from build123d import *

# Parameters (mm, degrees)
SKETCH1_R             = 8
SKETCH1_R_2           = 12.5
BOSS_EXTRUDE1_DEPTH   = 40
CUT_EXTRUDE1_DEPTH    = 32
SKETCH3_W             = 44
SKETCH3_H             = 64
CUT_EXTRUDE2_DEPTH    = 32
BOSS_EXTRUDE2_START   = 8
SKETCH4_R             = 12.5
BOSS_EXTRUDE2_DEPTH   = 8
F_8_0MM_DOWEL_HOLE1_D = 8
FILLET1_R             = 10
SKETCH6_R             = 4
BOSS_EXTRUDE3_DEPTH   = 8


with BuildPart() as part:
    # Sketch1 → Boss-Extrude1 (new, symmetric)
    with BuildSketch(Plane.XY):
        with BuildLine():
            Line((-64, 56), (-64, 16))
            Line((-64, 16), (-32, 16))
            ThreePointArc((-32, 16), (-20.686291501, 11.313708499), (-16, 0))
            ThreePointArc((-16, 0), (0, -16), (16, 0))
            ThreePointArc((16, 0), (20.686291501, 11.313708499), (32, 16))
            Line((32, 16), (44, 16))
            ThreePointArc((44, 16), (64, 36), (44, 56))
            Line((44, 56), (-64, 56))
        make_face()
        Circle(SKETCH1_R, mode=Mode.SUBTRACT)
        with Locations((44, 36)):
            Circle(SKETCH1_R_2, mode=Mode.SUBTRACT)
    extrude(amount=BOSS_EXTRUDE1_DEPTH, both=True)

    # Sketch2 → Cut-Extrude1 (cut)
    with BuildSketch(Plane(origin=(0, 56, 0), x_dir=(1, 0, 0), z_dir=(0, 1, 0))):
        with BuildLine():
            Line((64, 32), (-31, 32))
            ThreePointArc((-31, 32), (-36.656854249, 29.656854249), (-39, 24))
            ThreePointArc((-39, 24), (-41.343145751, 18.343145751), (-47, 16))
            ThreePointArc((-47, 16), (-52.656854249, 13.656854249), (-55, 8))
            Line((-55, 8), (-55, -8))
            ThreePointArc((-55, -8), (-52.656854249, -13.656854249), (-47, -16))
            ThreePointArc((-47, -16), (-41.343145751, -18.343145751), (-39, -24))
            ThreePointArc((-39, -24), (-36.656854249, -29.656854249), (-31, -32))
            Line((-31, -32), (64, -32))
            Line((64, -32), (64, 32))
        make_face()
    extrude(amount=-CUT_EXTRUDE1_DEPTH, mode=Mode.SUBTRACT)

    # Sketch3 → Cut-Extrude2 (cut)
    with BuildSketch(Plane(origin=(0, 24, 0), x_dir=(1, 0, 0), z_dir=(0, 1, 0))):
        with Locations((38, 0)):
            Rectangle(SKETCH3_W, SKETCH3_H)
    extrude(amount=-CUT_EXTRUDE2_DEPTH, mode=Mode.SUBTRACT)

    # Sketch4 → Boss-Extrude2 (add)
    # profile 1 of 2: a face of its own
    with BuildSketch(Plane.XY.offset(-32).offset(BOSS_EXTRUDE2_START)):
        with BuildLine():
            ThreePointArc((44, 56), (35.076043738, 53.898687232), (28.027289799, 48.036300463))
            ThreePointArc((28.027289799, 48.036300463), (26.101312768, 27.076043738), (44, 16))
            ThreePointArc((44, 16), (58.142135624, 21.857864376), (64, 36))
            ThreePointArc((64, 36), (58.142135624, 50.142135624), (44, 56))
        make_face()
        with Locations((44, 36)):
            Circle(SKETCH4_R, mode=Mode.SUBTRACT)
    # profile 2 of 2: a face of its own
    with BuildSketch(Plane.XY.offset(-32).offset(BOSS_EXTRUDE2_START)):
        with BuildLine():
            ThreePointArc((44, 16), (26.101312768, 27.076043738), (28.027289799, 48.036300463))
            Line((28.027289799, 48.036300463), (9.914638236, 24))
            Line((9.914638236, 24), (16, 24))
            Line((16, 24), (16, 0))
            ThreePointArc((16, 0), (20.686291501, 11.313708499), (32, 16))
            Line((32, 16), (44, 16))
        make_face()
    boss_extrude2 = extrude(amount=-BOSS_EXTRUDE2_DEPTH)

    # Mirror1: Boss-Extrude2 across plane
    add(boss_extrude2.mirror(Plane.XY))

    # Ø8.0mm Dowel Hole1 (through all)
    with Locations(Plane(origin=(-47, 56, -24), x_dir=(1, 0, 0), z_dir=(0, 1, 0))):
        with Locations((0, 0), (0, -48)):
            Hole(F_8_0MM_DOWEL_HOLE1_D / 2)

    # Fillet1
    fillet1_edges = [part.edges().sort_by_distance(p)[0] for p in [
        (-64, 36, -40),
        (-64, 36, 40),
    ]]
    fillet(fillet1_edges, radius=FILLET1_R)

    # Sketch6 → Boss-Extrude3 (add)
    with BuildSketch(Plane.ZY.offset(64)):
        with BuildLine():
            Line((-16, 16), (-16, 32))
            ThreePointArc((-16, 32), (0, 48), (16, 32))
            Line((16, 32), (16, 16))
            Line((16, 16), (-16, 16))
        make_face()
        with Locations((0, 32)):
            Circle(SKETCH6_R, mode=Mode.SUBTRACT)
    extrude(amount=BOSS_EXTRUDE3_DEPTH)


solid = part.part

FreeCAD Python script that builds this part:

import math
import FreeCAD as App
import Part
import Sketcher

V = App.Vector
Q = App.Units.Quantity


def edges_at(feature, points):
    """Names of the edges that pass closest to the given points."""
    edges = feature.Shape.Edges
    near = lambda p: min(range(len(edges)), key=lambda i: edges[i].distToShape(Part.Vertex(*p))[0])
    return sorted({f"Edge{near(p) + 1}" for p in points})


def add_polygon(sketch, points):
    """Adds a closed chain of lines whose ends are joined by coincident constraints."""
    first, n = sketch.GeometryCount, len(points)
    for a, b in zip(points, points[1:] + points[:1]):
        sketch.addGeometry(Part.LineSegment(App.Vector(*a, 0), App.Vector(*b, 0)), False)
    for i in range(n):
        sketch.addConstraint(Sketcher.Constraint("Coincident", first + i, 2, first + (i + 1) % n, 1))

doc = App.newDocument("Part")
params = doc.addObject("Spreadsheet::Sheet", "Params")
for row, (alias, value) in enumerate([
    ("sketch1_diameter", "16 mm"),
    ("sketch1_diameter2", "25 mm"),
    ("sketch1_radius", "16 mm"),
    ("sketch1_radius2", "20 mm"),
    ("sketch1_width", "32 mm"),
    ("pad1_length", "80 mm"),
    ("sketch2_radius", "8 mm"),
    ("sketch2_width", "95 mm"),
    ("sketch2_height", "16 mm"),
    ("pocket1_length", "32 mm"),
    ("sketch3_width", "44 mm"),
    ("sketch3_height", "64 mm"),
    ("pocket2_length", "32 mm"),
    ("sketch4_diameter", "25 mm"),
    ("sketch4_radius", "20 mm"),
    ("sketch4_radius2", "16 mm"),
    ("sketch4_width", "12 mm"),
    ("sketch4_height", "24 mm"),
    ("pad2_length", "8 mm"),
    ("sketch5_diameter", "8 mm"),
    ("hole_diameter", "8 mm"),
    ("fillet_radius", "10 mm"),
    ("sketch6_diameter", "8 mm"),
    ("sketch6_radius", "16 mm"),
    ("sketch6_width", "16 mm"),
    ("pad3_length", "8 mm"),
], start=1):
    params.set(f"A{row}", alias)
    params.set(f"B{row}", "=" + value)
    params.setAlias(f"B{row}", alias)

body = doc.addObject("PartDesign::Body", "Body")

sketch1 = body.newObject("Sketcher::SketchObject", "Sketch")
sketch1.AttachmentSupport = (doc.getObject("XY_Plane"), [""])
sketch1.MapMode = "FlatFace"
sketch1.addGeometry([
    Part.LineSegment(V(-64, 56, 0), V(-64, 16, 0)),
    Part.LineSegment(V(-64, 16, 0), V(-32, 16, 0)),
    Part.ArcOfCircle(Part.Circle(V(-32, 0, 0), V(0, 0, 1), 16), math.radians(0), math.radians(90)),
    Part.ArcOfCircle(Part.Circle(V(0, 0, 0), V(0, 0, 1), 16), math.radians(180), math.radians(360)),
    Part.ArcOfCircle(Part.Circle(V(32, 0, 0), V(0, 0, 1), 16), math.radians(90), math.radians(180)),
    Part.LineSegment(V(32, 16, 0), V(44, 16, 0)),
    Part.ArcOfCircle(Part.Circle(V(44, 36, 0), V(0, 0, 1), 20), math.radians(-90), math.radians(90)),
    Part.LineSegment(V(44, 56, 0), V(-64, 56, 0)),
    Part.Circle(V(0, 0, 0), V(0, 0, 1), 8),
    Part.Circle(V(44, 36, 0), V(0, 0, 1), 12),
], False)
sketch1.addConstraint([
    Sketcher.Constraint("Coincident", 0, 2, 1, 1),
    Sketcher.Constraint("Tangent", 1, 2, 2, 2),
    Sketcher.Constraint("Tangent", 2, 1, 3, 1),
    Sketcher.Constraint("Tangent", 3, 2, 4, 2),
    Sketcher.Constraint("Tangent", 4, 1, 5, 1),
    Sketcher.Constraint("Tangent", 5, 2, 6, 1),
    Sketcher.Constraint("Tangent", 6, 2, 7, 1),
    Sketcher.Constraint("Coincident", 7, 2, 0, 1),
    Sketcher.Constraint("Vertical", 0),
    Sketcher.Constraint("Horizontal", 1),
    Sketcher.Constraint("Horizontal", 5),
    Sketcher.Constraint("Horizontal", 7),
    Sketcher.Constraint("Coincident", 3, 3, -1, 1),
    Sketcher.Constraint("Coincident", 8, 3, -1, 1),
    Sketcher.Constraint("Coincident", 9, 3, 6, 3),
    Sketcher.Constraint("Equal", 2, 3),
    Sketcher.Constraint("Equal", 3, 4),
    Sketcher.Constraint("PointOnObject", 2, 3, -1),
    Sketcher.Constraint("PointOnObject", 4, 3, -1),
    Sketcher.Constraint("Diameter", 8, 16.0),
    Sketcher.Constraint("Diameter", 9, 25.0),
    Sketcher.Constraint("Radius", 2, 16.0),
    Sketcher.Constraint("Radius", 6, 20.0),
    Sketcher.Constraint("DistanceX", 1, 1, 1, 2, 32.0),
    Sketcher.Constraint("DistanceX", 5, 1, 5, 2, 12.0),
])
sketch1.setExpression("Constraints[19]", "Params.sketch1_diameter")
sketch1.setExpression("Constraints[20]", "Params.sketch1_diameter2")
sketch1.setExpression("Constraints[21]", "Params.sketch1_radius")
sketch1.setExpression("Constraints[22]", "Params.sketch1_radius2")
sketch1.setExpression("Constraints[23]", "Params.sketch1_width")
pad1 = body.newObject("PartDesign::Pad", "Pad")
pad1.Profile = sketch1
pad1.setExpression("Length", "Params.pad1_length")
pad1.Midplane = True

sketch2 = body.newObject("Sketcher::SketchObject", "Sketch001")
sketch2.AttachmentSupport = (doc.getObject("XZ_Plane"), [""])
sketch2.MapMode = "FlatFace"
sketch2.AttachmentOffset = App.Placement(V(0, 0, -56), App.Rotation())
sketch2.addGeometry([
    Part.LineSegment(V(64, -32, 0), V(-31, -32, 0)),
    Part.ArcOfCircle(Part.Circle(V(-31, -24, 0), V(0, 0, 1), 8), math.radians(-180), math.radians(-90)),
    Part.ArcOfCircle(Part.Circle(V(-47, -24, 0), V(0, 0, 1), 8), math.radians(0), math.radians(90)),
    Part.ArcOfCircle(Part.Circle(V(-47, -8, 0), V(0, 0, 1), 8), math.radians(-180), math.radians(-90)),
    Part.LineSegment(V(-55, -8, 0), V(-55, 8, 0)),
    Part.ArcOfCircle(Part.Circle(V(-47, 8, 0), V(0, 0, 1), 8), math.radians(90), math.radians(180)),
    Part.ArcOfCircle(Part.Circle(V(-47, 24, 0), V(0, 0, 1), 8), math.radians(-90), math.radians(0)),
    Part.ArcOfCircle(Part.Circle(V(-31, 24, 0), V(0, 0, 1), 8), math.radians(90), math.radians(180)),
    Part.LineSegment(V(-31, 32, 0), V(64, 32, 0)),
    Part.LineSegment(V(64, 32, 0), V(64, -32, 0)),
], False)
sketch2.addConstraint([
    Sketcher.Constraint("Tangent", 0, 2, 1, 2),
    Sketcher.Constraint("Tangent", 1, 1, 2, 1),
    Sketcher.Constraint("Tangent", 2, 2, 3, 2),
    Sketcher.Constraint("Tangent", 3, 1, 4, 1),
    Sketcher.Constraint("Tangent", 4, 2, 5, 2),
    Sketcher.Constraint("Tangent", 5, 1, 6, 1),
    Sketcher.Constraint("Tangent", 6, 2, 7, 2),
    Sketcher.Constraint("Tangent", 7, 1, 8, 1),
    Sketcher.Constraint("Coincident", 8, 2, 9, 1),
    Sketcher.Constraint("Coincident", 9, 2, 0, 1),
    Sketcher.Constraint("Horizontal", 0),
    Sketcher.Constraint("Vertical", 4),
    Sketcher.Constraint("Horizontal", 8),
    Sketcher.Constraint("Vertical", 9),
    Sketcher.Constraint("Equal", 1, 2),
    Sketcher.Constraint("Equal", 2, 3),
    Sketcher.Constraint("Equal", 3, 5),
    Sketcher.Constraint("Equal", 5, 6),
    Sketcher.Constraint("Equal", 6, 7),
    Sketcher.Constraint("Symmetric", 2, 3, 6, 3, -1),
    Sketcher.Constraint("Horizontal", 1, 3, 2, 3),
    Sketcher.Constraint("Horizontal", 6, 3, 7, 3),
    Sketcher.Constraint("Vertical", 2, 3, 3, 3),
    Sketcher.Constraint("Radius", 1, 8.0),
    Sketcher.Constraint("DistanceX", 0, 2, 0, 1, 95.0),
    Sketcher.Constraint("DistanceY", 4, 1, 4, 2, 16.0),
    Sketcher.Constraint("DistanceX", 1, 3, -1, 1, 31.0),
])
sketch2.setExpression("Constraints[23]", "Params.sketch2_radius")
sketch2.setExpression("Constraints[24]", "Params.sketch2_width")
sketch2.setExpression("Constraints[25]", "Params.sketch2_height")
pocket1 = body.newObject("PartDesign::Pocket", "Pocket")
pocket1.Profile = sketch2
pocket1.setExpression("Length", "Params.pocket1_length")
pocket1.Reversed = True

sketch3 = body.newObject("Sketcher::SketchObject", "Sketch002")
sketch3.AttachmentSupport = (doc.getObject("XZ_Plane"), [""])
sketch3.MapMode = "FlatFace"
sketch3.AttachmentOffset = App.Placement(V(0, 0, -24), App.Rotation())
add_polygon(sketch3, [(16, -32), (16, 32), (60, 32), (60, -32)])
sketch3.addConstraint([
    Sketcher.Constraint("Vertical", 0),
    Sketcher.Constraint("Horizontal", 1),
    Sketcher.Constraint("Vertical", 2),
    Sketcher.Constraint("Horizontal", 3),
    Sketcher.Constraint("DistanceX", 1, 1, 1, 2, 44.0),
    Sketcher.Constraint("DistanceY", 0, 1, 0, 2, 64.0),
    Sketcher.Constraint("DistanceX", -1, 1, 0, 2, 16.0),
    Sketcher.Constraint("DistanceY", -1, 1, 0, 2, 32.0),
])
sketch3.setExpression("Constraints[8]", "Params.sketch3_width")
sketch3.setExpression("Constraints[9]", "Params.sketch3_height")
pocket2 = body.newObject("PartDesign::Pocket", "Pocket001")
pocket2.Profile = sketch3
pocket2.setExpression("Length", "Params.pocket2_length")
pocket2.Reversed = True

sketch4 = body.newObject("Sketcher::SketchObject", "Sketch003")
sketch4.AttachmentSupport = (doc.getObject("XY_Plane"), [""])
sketch4.MapMode = "FlatFace"
sketch4.AttachmentOffset = App.Placement(V(0, 0, -24), App.Rotation())
sketch4.addGeometry([
    Part.ArcOfCircle(Part.Circle(V(44, 36, 0), V(0, 0, 1), 20), math.radians(90), math.radians(143)),
    Part.LineSegment(V(28, 48, 0), V(10, 24, 0)),
    Part.LineSegment(V(10, 24, 0), V(16, 24, 0)),
    Part.LineSegment(V(16, 24, 0), V(16, 0, 0)),
    Part.ArcOfCircle(Part.Circle(V(32, 0, 0), V(0, 0, 1), 16), math.radians(90), math.radians(180)),
    Part.LineSegment(V(32, 16, 0), V(44, 16, 0)),
    Part.ArcOfCircle(Part.Circle(V(44, 36, 0), V(0, 0, 1), 20), math.radians(-90), math.radians(0)),
    Part.ArcOfCircle(Part.Circle(V(44, 36, 0), V(0, 0, 1), 20), math.radians(0), math.radians(90)),
    Part.Circle(V(44, 36, 0), V(0, 0, 1), 12),
], False)
sketch4.addConstraint([
    Sketcher.Constraint("Tangent", 0, 2, 1, 1),
    Sketcher.Constraint("Coincident", 1, 2, 2, 1),
    Sketcher.Constraint("Coincident", 2, 2, 3, 1),
    Sketcher.Constraint("Tangent", 3, 2, 4, 2),
    Sketcher.Constraint("Tangent", 4, 1, 5, 1),
    Sketcher.Constraint("Tangent", 5, 2, 6, 1),
    Sketcher.Constraint("Tangent", 6, 2, 7, 1),
    Sketcher.Constraint("Tangent", 7, 2, 0, 1),
    Sketcher.Constraint("Horizontal", 2),
    Sketcher.Constraint("Vertical", 3),
    Sketcher.Constraint("Horizontal", 5),
    Sketcher.Constraint("Coincident", 6, 3, 0, 3),
    Sketcher.Constraint("Coincident", 8, 3, 0, 3),
    Sketcher.Constraint("PointOnObject", 4, 3, -1),
    Sketcher.Constraint("Horizontal", 8, 3, 6, 2),
    Sketcher.Constraint("Vertical", 5, 2, 7, 2),
    Sketcher.Constraint("Diameter", 8, 25.0),
    Sketcher.Constraint("Radius", 0, 20.0),
    Sketcher.Constraint("Radius", 4, 16.0),
    Sketcher.Constraint("DistanceX", 5, 1, 5, 2, 12.0),
    Sketcher.Constraint("DistanceY", 3, 2, 3, 1, 24.0),
    Sketcher.Constraint("Angle", 1, Q("-127 deg")),
    Sketcher.Constraint("DistanceX", -1, 1, 0, 3, 44.0),
])
sketch4.setExpression("Constraints[16]", "Params.sketch4_diameter")
sketch4.setExpression("Constraints[17]", "Params.sketch4_radius")
sketch4.setExpression("Constraints[18]", "Params.sketch4_radius2")
sketch4.setExpression("Constraints[19]", "Params.sketch4_width")
sketch4.setExpression("Constraints[20]", "Params.sketch4_height")
pad2 = body.newObject("PartDesign::Pad", "Pad001")
pad2.Profile = sketch4
pad2.setExpression("Length", "Params.pad2_length")
pad2.Reversed = True
doc.recompute()

mirrored = body.newObject("PartDesign::Mirrored", "Mirrored")
mirrored.Originals = [pad2]
mirrored.MirrorPlane = (doc.getObject("XY_Plane"), [""])
body.Tip = mirrored

sketch5 = body.newObject("Sketcher::SketchObject", "Sketch004")
sketch5.AttachmentSupport = (doc.getObject("XZ_Plane"), [""])
sketch5.MapMode = "FlatFace"
sketch5.AttachmentOffset = App.Placement(V(0, 0, -56), App.Rotation())
sketch5.addGeometry([
    Part.Circle(V(-47, -24, 0), V(0, 0, 1), 4),
    Part.Circle(V(-47, 24, 0), V(0, 0, 1), 4),
], False)
sketch5.addConstraint([
    Sketcher.Constraint("Equal", 0, 1),
    Sketcher.Constraint("Symmetric", 0, 3, 1, 3, -1),
    Sketcher.Constraint("Diameter", 0, 8.0),
    Sketcher.Constraint("DistanceX", 0, 3, -1, 1, 47.0),
    Sketcher.Constraint("DistanceY", 0, 3, -1, 1, 24.0),
])
sketch5.setExpression("Constraints[2]", "Params.sketch5_diameter")
doc.recompute()
hole = body.newObject("PartDesign::Hole", "Hole")
hole.Profile = sketch5
hole.ThreadType = "None"
hole.setExpression("Diameter", "Params.hole_diameter")
hole.DepthType = "ThroughAll"
hole.Reversed = True
doc.recompute()

fillet = body.newObject("PartDesign::Fillet", "Fillet")
fillet.Base = (hole, edges_at(hole, [(-64, 36, -40), (-64, 36, 40)]))
fillet.setExpression("Radius", "Params.fillet_radius")

sketch6 = body.newObject("Sketcher::SketchObject", "Sketch005")
sketch6.AttachmentSupport = (doc.getObject("YZ_Plane"), [""])
sketch6.MapMode = "FlatFace"
sketch6.AttachmentOffset = App.Placement(V(0, 0, -64), App.Rotation())
sketch6.addGeometry([
    Part.LineSegment(V(32, -16, 0), V(16, -16, 0)),
    Part.LineSegment(V(16, -16, 0), V(16, 16, 0)),
    Part.LineSegment(V(16, 16, 0), V(32, 16, 0)),
    Part.ArcOfCircle(Part.Circle(V(32, 0, 0), V(0, 0, 1), 16), math.radians(-90), math.radians(90)),
    Part.Circle(V(32, 0, 0), V(0, 0, 1), 4),
], False)
sketch6.addConstraint([
    Sketcher.Constraint("Coincident", 0, 2, 1, 1),
    Sketcher.Constraint("Coincident", 1, 2, 2, 1),
    Sketcher.Constraint("Tangent", 2, 2, 3, 2),
    Sketcher.Constraint("Tangent", 3, 1, 0, 1),
    Sketcher.Constraint("Horizontal", 0),
    Sketcher.Constraint("Vertical", 1),
    Sketcher.Constraint("Horizontal", 2),
    Sketcher.Constraint("Coincident", 4, 3, 3, 3),
    Sketcher.Constraint("PointOnObject", 3, 3, -1),
    Sketcher.Constraint("Diameter", 4, 8.0),
    Sketcher.Constraint("Radius", 3, 16.0),
    Sketcher.Constraint("DistanceX", 0, 2, 0, 1, 16.0),
    Sketcher.Constraint("DistanceX", -1, 1, 3, 3, 32.0),
])
sketch6.setExpression("Constraints[9]", "Params.sketch6_diameter")
sketch6.setExpression("Constraints[10]", "Params.sketch6_radius")
sketch6.setExpression("Constraints[11]", "Params.sketch6_width")
pad3 = body.newObject("PartDesign::Pad", "Pad002")
pad3.Profile = sketch6
pad3.setExpression("Length", "Params.pad3_length")
pad3.Reversed = True

doc.recompute()
